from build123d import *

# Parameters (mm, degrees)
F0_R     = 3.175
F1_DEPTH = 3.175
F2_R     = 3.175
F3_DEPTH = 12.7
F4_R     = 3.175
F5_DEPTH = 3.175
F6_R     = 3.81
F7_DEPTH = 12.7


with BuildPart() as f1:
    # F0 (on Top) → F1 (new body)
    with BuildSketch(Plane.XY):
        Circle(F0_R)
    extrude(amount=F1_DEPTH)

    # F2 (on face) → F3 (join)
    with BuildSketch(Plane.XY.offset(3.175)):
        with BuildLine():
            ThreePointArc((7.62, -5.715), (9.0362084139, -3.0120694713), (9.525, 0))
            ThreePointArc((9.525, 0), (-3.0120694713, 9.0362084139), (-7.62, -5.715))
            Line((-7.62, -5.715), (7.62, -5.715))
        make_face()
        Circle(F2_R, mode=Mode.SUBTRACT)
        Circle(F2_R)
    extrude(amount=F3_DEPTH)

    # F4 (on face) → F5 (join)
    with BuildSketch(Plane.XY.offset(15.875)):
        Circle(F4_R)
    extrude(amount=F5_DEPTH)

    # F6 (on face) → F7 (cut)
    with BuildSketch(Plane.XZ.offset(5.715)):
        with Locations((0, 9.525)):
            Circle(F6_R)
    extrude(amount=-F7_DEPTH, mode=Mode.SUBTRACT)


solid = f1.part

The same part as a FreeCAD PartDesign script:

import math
import FreeCAD as App
import Part
import Sketcher
Q = App.Units.Quantity

doc = App.newDocument("Part")
body = doc.addObject("PartDesign::Body", "Body")

# Sketch on XY plane
sketch1 = body.newObject("Sketcher::SketchObject", "Sketch")
sketch1.AttachmentSupport = (doc.getObject("XY_Plane"), [""])
sketch1.MapMode = "FlatFace"
sketch1.addGeometry(Part.Circle(App.Vector(0, 0, 0), App.Vector(0, 0, 1), 3.2), False)
sketch1.addConstraint([
    Sketcher.Constraint("Coincident", 0, 3, -1, 1),
    Sketcher.Constraint("Diameter", 0, Q("0.25 in")),
])
pad1 = body.newObject("PartDesign::Pad", "Pad")
pad1.Profile = sketch1
pad1.Length = Q("0.125 in")

# Sketch on XY plane
sketch2 = body.newObject("Sketcher::SketchObject", "Sketch001")
sketch2.AttachmentSupport = (doc.getObject("XY_Plane"), [""])
sketch2.MapMode = "FlatFace"
sketch2.AttachmentOffset = App.Placement(App.Vector(0, 0, 0.125 * 25.4), App.Rotation())
sketch2.addGeometry([
    Part.ArcOfCircle(Part.Circle(App.Vector(0, 0, 0), App.Vector(0, 0, 1), 10), math.radians(-37), math.radians(0)),
    Part.ArcOfCircle(Part.Circle(App.Vector(0, 0, 0), App.Vector(0, 0, 1), 10), math.radians(0), math.radians(217)),
    Part.LineSegment(App.Vector(-8, -6, 0), App.Vector(8, -6, 0)),
], False)
sketch2.addConstraint([
    Sketcher.Constraint("Tangent", 0, 2, 1, 1),
    Sketcher.Constraint("Coincident", 1, 2, 2, 1),
    Sketcher.Constraint("Coincident", 2, 2, 0, 1),
    Sketcher.Constraint("Horizontal", 2),
    Sketcher.Constraint("Coincident", 0, 3, -1, 1),
    Sketcher.Constraint("Equal", 0, 1),
    Sketcher.Constraint("PointOnObject", 0, 2, -1),
    Sketcher.Constraint("DistanceX", 2, 1, 2, 2, Q("0.6 in")),
    Sketcher.Constraint("Radius", 0, Q("0.375 in")),
])
pad2 = body.newObject("PartDesign::Pad", "Pad001")
pad2.Profile = sketch2
pad2.Length = Q("0.5 in")

# Sketch on XY plane
sketch3 = body.newObject("Sketcher::SketchObject", "Sketch002")
sketch3.AttachmentSupport = (doc.getObject("XY_Plane"), [""])
sketch3.MapMode = "FlatFace"
sketch3.AttachmentOffset = App.Placement(App.Vector(0, 0, 0.625 * 25.4), App.Rotation())
sketch3.addGeometry(Part.Circle(App.Vector(0, 0, 0), App.Vector(0, 0, 1), 3.2), False)
sketch3.addConstraint([
    Sketcher.Constraint("Coincident", 0, 3, -1, 1),
    Sketcher.Constraint("Diameter", 0, Q("0.25 in")),
])
pad3 = body.newObject("PartDesign::Pad", "Pad002")
pad3.Profile = sketch3
pad3.Length = Q("0.125 in")

# Sketch on XZ plane
sketch4 = body.newObject("Sketcher::SketchObject", "Sketch003")
sketch4.AttachmentSupport = (doc.getObject("XZ_Plane"), [""])
sketch4.MapMode = "FlatFace"
sketch4.AttachmentOffset = App.Placement(App.Vector(0, 0, 0.225 * 25.4), App.Rotation())
sketch4.addGeometry(Part.Circle(App.Vector(0, 9.5, 0), App.Vector(0, 0, 1), 3.8), False)
sketch4.addConstraint([
    Sketcher.Constraint("PointOnObject", 0, 3, -2),
    Sketcher.Constraint("Diameter", 0, Q("0.3 in")),
    Sketcher.Constraint("DistanceY", -1, 1, 0, 3, Q("0.375 in")),
])
pocket1 = body.newObject("PartDesign::Pocket", "Pocket")
pocket1.Profile = sketch4
pocket1.Length = Q("0.5 in")

doc.recompute()
